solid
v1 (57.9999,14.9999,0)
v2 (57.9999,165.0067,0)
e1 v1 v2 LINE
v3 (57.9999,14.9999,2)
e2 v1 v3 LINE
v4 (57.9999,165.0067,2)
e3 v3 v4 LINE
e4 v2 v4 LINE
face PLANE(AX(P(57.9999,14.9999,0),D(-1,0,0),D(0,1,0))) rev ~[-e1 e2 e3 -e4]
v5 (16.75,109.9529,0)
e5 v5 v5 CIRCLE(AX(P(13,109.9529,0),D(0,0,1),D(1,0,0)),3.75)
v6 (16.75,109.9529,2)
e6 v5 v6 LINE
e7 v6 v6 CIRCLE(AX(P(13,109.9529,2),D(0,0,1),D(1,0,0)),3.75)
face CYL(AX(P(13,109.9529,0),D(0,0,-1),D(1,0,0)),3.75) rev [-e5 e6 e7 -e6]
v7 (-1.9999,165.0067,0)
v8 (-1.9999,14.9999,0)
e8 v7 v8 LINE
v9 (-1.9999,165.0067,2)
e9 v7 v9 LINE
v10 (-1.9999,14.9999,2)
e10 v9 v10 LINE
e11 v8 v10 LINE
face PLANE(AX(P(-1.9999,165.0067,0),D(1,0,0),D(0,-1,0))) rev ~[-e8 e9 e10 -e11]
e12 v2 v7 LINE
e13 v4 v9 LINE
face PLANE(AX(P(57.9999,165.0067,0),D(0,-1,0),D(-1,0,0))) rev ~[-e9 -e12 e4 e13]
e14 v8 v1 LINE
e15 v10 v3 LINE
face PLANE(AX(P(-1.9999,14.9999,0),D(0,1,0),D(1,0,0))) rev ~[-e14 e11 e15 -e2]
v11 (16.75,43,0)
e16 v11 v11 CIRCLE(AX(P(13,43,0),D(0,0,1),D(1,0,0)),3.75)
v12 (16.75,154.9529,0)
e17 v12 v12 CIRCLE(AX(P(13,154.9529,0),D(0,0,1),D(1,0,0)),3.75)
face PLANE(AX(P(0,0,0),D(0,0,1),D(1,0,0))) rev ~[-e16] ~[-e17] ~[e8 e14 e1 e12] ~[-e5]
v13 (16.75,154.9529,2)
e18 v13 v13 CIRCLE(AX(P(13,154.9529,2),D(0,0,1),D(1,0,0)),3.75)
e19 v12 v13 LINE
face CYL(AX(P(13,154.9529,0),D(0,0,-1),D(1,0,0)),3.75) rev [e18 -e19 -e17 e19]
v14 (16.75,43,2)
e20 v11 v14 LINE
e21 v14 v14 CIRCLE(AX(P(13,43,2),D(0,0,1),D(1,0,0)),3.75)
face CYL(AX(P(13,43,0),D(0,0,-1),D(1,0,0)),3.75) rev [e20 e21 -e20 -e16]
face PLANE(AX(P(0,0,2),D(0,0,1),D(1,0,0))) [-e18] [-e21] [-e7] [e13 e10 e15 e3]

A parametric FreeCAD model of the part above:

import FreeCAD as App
import Part
import Sketcher

V = App.Vector

doc = App.newDocument("Part")
body = doc.addObject("PartDesign::Body", "Body")

sketch1 = doc.addObject("Sketcher::SketchObject", "Sketch")
body.addObject(sketch1)
sketch1.AttachmentSupport = (doc.XY_Plane, [""])
sketch1.MapMode = "FlatFace"
sketch1.addGeometry(Part.LineSegment(V(58, 15, 0), V(58, 165, 0)), False)
sketch1.addGeometry(Part.LineSegment(V(58, 165, 0), V(-2, 165, 0)), False)
sketch1.addGeometry(Part.LineSegment(V(-2, 165, 0), V(-2, 15, 0)), False)
sketch1.addGeometry(Part.LineSegment(V(-2, 15, 0), V(58, 15, 0)), False)
sketch1.addGeometry(Part.Circle(V(13, 43, 0), V(0, 0, 1), 3.8), False)
sketch1.addGeometry(Part.Circle(V(13, 110, 0), V(0, 0, 1), 3.8), False)
sketch1.addGeometry(Part.Circle(V(13, 155, 0), V(0, 0, 1), 3.8), False)
sketch1.addConstraint(Sketcher.Constraint("Coincident", 0, 2, 1, 1))
sketch1.addConstraint(Sketcher.Constraint("Coincident", 1, 2, 2, 1))
sketch1.addConstraint(Sketcher.Constraint("Coincident", 2, 2, 3, 1))
sketch1.addConstraint(Sketcher.Constraint("Coincident", 3, 2, 0, 1))
sketch1.addConstraint(Sketcher.Constraint("Vertical", 0))
sketch1.addConstraint(Sketcher.Constraint("Horizontal", 1))
sketch1.addConstraint(Sketcher.Constraint("Vertical", 2))
sketch1.addConstraint(Sketcher.Constraint("Horizontal", 3))
sketch1.addConstraint(Sketcher.Constraint("Equal", 4, 5))
sketch1.addConstraint(Sketcher.Constraint("Equal", 5, 6))
sketch1.addConstraint(Sketcher.Constraint("Vertical", 4, 3, 5, 3))
sketch1.addConstraint(Sketcher.Constraint("Vertical", 5, 3, 6, 3))
sketch1.addConstraint(Sketcher.Constraint("Diameter", 4, 7.5))
sketch1.addConstraint(Sketcher.Constraint("DistanceX", 1, 2, 1, 1, 59.9998))
sketch1.addConstraint(Sketcher.Constraint("DistanceY", 0, 1, 0, 2, 150.0068))
sketch1.addConstraint(Sketcher.Constraint("DistanceX", -1, 1, 4, 3, 13.0))
sketch1.addConstraint(Sketcher.Constraint("DistanceY", -1, 1, 4, 3, 43.0))
sketch1.addConstraint(Sketcher.Constraint("DistanceX", -1, 1, 0, 2, 58.0))
sketch1.addConstraint(Sketcher.Constraint("DistanceY", -1, 1, 2, 2, 15.0))
sketch1.addConstraint(Sketcher.Constraint("DistanceY", 5, 3, 6, 3, 45.0))
sketch1.addConstraint(Sketcher.Constraint("DistanceY", -1, 1, 5, 3, 109.953))
pad1 = doc.addObject("PartDesign::Pad", "Pad")
body.addObject(pad1)
pad1.Profile = sketch1
pad1.Length = 2

doc.recompute()
